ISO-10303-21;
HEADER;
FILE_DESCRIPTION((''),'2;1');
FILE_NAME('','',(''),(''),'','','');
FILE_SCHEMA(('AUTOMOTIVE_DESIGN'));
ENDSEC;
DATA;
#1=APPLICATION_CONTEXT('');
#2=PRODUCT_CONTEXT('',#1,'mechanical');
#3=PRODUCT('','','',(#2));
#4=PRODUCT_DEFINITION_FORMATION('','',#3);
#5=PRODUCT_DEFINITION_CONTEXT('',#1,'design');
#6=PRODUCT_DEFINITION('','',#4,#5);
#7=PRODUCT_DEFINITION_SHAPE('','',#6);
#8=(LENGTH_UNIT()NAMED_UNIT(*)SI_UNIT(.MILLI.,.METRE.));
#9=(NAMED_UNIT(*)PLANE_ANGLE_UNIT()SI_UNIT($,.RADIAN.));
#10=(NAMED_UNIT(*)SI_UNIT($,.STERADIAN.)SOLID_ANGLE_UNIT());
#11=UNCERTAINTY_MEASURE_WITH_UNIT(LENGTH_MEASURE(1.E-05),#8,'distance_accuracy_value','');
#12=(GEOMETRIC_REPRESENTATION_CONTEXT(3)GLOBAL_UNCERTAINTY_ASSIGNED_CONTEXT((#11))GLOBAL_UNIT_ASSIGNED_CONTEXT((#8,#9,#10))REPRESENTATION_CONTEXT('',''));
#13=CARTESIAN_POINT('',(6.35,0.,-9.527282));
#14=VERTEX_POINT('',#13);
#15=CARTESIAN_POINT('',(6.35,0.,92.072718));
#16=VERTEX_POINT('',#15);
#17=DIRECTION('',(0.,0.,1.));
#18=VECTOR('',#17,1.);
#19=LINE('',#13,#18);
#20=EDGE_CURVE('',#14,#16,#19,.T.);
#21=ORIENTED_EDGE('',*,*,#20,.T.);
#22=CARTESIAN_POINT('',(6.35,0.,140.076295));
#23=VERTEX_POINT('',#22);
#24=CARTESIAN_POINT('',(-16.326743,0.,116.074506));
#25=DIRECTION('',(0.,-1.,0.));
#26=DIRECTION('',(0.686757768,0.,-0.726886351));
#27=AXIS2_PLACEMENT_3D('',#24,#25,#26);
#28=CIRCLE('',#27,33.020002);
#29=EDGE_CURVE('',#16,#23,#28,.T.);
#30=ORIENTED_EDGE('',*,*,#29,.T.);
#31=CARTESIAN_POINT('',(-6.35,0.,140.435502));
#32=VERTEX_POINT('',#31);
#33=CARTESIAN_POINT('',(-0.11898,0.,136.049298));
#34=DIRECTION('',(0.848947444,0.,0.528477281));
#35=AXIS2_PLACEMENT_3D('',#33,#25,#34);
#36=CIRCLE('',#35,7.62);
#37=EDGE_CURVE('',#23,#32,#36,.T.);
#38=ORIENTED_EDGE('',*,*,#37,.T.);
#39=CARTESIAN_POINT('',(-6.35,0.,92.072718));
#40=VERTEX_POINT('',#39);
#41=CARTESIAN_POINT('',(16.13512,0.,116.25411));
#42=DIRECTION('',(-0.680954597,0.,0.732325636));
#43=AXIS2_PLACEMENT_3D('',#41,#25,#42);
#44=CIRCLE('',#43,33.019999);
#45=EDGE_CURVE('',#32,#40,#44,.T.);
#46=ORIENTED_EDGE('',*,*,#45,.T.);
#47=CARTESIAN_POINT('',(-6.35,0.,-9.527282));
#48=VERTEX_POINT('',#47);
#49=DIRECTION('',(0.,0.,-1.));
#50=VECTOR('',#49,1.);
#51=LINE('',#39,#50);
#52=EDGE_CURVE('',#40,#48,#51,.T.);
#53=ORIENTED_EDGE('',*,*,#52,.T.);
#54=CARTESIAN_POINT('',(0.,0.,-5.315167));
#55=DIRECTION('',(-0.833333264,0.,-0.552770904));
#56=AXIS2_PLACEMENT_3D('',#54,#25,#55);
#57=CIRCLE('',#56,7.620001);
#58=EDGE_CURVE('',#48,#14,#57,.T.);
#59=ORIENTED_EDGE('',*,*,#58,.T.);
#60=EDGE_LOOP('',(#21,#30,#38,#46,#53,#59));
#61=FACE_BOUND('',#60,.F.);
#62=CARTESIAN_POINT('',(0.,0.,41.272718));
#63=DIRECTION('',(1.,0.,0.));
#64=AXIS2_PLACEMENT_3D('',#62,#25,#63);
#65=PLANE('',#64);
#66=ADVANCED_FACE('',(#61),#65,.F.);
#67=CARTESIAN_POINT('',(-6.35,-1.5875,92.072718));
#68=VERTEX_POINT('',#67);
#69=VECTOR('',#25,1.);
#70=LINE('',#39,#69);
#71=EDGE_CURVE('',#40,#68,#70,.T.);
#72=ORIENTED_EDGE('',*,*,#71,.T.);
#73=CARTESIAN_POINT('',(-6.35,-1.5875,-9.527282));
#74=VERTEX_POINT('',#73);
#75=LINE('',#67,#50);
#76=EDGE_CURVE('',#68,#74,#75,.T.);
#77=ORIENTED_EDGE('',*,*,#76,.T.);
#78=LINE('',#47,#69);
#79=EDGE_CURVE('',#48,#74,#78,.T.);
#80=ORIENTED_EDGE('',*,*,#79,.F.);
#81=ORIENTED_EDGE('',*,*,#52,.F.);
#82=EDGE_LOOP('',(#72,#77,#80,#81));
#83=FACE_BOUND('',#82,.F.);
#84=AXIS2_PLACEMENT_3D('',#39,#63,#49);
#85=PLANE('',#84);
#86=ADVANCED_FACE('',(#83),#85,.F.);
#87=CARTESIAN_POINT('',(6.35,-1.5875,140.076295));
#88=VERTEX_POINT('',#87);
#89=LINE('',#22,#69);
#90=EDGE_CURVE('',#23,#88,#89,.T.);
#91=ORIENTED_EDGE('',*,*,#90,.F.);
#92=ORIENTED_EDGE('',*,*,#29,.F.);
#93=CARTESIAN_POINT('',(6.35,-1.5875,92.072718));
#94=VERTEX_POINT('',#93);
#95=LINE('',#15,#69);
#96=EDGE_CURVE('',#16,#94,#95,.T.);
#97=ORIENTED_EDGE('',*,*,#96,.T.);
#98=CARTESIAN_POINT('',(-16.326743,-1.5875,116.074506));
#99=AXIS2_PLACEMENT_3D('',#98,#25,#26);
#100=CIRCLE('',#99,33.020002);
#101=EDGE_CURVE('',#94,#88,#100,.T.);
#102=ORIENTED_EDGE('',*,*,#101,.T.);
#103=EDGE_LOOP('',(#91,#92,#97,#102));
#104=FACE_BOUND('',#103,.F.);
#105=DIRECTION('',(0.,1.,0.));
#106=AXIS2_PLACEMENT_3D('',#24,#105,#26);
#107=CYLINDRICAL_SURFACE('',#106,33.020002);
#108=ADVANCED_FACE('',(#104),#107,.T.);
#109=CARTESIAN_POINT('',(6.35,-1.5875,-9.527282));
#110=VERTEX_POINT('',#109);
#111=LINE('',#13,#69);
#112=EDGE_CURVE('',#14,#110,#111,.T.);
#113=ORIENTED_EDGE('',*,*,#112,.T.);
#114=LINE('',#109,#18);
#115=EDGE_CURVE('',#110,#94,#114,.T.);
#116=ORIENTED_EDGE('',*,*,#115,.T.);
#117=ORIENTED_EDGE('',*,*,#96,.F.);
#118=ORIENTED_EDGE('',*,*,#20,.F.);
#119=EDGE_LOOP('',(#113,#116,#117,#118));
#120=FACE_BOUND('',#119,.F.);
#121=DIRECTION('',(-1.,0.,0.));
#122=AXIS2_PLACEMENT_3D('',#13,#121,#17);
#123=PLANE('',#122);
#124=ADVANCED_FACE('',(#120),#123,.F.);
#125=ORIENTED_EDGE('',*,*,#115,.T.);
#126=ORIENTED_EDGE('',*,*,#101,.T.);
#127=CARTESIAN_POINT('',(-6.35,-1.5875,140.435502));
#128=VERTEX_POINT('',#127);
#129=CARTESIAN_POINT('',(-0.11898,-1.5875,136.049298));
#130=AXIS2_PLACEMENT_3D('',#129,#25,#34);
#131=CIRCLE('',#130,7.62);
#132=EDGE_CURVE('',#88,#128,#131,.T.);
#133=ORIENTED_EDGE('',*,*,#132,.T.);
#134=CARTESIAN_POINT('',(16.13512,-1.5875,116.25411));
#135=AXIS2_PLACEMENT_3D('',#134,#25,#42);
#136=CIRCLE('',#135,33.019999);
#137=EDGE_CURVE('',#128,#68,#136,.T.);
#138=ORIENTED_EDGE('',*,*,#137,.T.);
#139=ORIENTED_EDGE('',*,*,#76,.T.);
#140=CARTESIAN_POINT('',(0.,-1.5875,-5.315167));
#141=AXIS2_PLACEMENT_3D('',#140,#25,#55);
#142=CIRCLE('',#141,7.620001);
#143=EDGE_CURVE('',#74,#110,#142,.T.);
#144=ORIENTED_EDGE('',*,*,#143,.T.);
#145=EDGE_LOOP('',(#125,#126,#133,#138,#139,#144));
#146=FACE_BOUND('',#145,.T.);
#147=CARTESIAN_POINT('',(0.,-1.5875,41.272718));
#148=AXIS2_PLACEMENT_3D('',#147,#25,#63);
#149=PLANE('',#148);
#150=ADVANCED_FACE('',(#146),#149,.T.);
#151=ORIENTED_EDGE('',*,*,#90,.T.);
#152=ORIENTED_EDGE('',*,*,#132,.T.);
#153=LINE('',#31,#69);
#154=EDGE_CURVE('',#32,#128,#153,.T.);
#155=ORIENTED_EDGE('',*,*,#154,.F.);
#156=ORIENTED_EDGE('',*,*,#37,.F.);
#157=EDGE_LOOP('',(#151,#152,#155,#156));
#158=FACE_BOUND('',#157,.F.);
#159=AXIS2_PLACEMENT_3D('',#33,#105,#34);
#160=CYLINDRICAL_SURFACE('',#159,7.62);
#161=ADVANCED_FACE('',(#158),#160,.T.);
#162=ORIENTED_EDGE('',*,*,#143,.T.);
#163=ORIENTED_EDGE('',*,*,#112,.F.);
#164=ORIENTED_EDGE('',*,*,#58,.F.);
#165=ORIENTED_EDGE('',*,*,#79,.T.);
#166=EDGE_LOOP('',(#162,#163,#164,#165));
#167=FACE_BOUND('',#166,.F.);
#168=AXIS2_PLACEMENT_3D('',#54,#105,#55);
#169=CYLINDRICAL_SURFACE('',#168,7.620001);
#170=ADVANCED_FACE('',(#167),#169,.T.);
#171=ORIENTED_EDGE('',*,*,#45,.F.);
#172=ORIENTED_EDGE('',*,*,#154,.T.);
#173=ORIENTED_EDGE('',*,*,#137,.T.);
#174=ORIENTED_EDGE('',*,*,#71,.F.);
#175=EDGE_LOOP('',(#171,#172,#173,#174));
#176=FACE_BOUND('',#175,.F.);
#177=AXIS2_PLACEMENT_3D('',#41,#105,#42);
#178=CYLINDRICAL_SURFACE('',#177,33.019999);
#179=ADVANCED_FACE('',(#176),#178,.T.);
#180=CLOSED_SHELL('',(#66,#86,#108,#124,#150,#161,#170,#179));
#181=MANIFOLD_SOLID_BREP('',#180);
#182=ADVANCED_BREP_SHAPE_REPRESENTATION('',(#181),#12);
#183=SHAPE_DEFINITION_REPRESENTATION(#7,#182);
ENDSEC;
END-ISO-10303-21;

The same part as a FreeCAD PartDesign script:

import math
import FreeCAD as App
import Part
import Sketcher

V = App.Vector
Q = App.Units.Quantity

doc = App.newDocument("Part")
body = doc.addObject("PartDesign::Body", "Body")

# Sketch on XZ plane
sketch1 = body.newObject("Sketcher::SketchObject", "Sketch")
sketch1.AttachmentSupport = (doc.getObject("XZ_Plane"), [""])
sketch1.MapMode = "FlatFace"
sketch1.addGeometry([
    Part.LineSegment(V(-6, 92, 0), V(-6, -10, 0)),  # 0
    Part.ArcOfCircle(Part.Circle(V(0, -5, 0), V(0, 0, 1), 8), math.radians(-146), math.radians(-34)),  # 1
    Part.LineSegment(V(6, -10, 0), V(6, 92, 0)),  # 2
    Part.ArcOfCircle(Part.Circle(V(-16, 116, 0), V(0, 0, 1), 33), math.radians(-47), math.radians(47)),  # 3
    Part.ArcOfCircle(Part.Circle(V(0, 136, 0), V(0, 0, 1), 8), math.radians(32), math.radians(145)),  # 4
    Part.ArcOfCircle(Part.Circle(V(16, 116, 0), V(0, 0, 1), 33), math.radians(133), math.radians(227)),  # 5
], False)
sketch1.addConstraint([
    Sketcher.Constraint("Coincident", 0, 2, 1, 1),
    Sketcher.Constraint("Coincident", 1, 2, 2, 1),
    Sketcher.Constraint("Coincident", 2, 2, 3, 1),
    Sketcher.Constraint("Coincident", 3, 2, 4, 1),
    Sketcher.Constraint("Coincident", 4, 2, 5, 1),
    Sketcher.Constraint("Coincident", 5, 2, 0, 1),
    Sketcher.Constraint("Vertical", 0),
    Sketcher.Constraint("Vertical", 2),
    Sketcher.Constraint("Equal", 1, 4),
    Sketcher.Constraint("Symmetric", 0, 2, 1, 2, -2),
    Sketcher.Constraint("Horizontal", 2, 2, 5, 2),
    Sketcher.Constraint("Vertical", 2, 2, 3, 2),
    Sketcher.Constraint("Vertical", 0, 2, 4, 2),
    Sketcher.Constraint("Radius", 1, Q("0.3 in")),
    Sketcher.Constraint("Radius", 3, Q("1.3000001 in")),
    Sketcher.Constraint("Radius", 5, Q("1.3 in")),
    Sketcher.Constraint("DistanceY", 0, 2, 0, 1, Q("4 in")),
    Sketcher.Constraint("DistanceX", 0, 2, 1, 2, Q("0.5 in")),
    Sketcher.Constraint("DistanceY", -1, 1, 4, 3, 136.049298),
    Sketcher.Constraint("DistanceX", 4, 3, 5, 3, 16.2541),
    Sketcher.Constraint("DistanceX", 4, 3, -1, 1, 0.11898),
])
pad1 = body.newObject("PartDesign::Pad", "Pad")
pad1.Profile = sketch1
pad1.Length = Q("0.0625 in")

doc.recompute()
